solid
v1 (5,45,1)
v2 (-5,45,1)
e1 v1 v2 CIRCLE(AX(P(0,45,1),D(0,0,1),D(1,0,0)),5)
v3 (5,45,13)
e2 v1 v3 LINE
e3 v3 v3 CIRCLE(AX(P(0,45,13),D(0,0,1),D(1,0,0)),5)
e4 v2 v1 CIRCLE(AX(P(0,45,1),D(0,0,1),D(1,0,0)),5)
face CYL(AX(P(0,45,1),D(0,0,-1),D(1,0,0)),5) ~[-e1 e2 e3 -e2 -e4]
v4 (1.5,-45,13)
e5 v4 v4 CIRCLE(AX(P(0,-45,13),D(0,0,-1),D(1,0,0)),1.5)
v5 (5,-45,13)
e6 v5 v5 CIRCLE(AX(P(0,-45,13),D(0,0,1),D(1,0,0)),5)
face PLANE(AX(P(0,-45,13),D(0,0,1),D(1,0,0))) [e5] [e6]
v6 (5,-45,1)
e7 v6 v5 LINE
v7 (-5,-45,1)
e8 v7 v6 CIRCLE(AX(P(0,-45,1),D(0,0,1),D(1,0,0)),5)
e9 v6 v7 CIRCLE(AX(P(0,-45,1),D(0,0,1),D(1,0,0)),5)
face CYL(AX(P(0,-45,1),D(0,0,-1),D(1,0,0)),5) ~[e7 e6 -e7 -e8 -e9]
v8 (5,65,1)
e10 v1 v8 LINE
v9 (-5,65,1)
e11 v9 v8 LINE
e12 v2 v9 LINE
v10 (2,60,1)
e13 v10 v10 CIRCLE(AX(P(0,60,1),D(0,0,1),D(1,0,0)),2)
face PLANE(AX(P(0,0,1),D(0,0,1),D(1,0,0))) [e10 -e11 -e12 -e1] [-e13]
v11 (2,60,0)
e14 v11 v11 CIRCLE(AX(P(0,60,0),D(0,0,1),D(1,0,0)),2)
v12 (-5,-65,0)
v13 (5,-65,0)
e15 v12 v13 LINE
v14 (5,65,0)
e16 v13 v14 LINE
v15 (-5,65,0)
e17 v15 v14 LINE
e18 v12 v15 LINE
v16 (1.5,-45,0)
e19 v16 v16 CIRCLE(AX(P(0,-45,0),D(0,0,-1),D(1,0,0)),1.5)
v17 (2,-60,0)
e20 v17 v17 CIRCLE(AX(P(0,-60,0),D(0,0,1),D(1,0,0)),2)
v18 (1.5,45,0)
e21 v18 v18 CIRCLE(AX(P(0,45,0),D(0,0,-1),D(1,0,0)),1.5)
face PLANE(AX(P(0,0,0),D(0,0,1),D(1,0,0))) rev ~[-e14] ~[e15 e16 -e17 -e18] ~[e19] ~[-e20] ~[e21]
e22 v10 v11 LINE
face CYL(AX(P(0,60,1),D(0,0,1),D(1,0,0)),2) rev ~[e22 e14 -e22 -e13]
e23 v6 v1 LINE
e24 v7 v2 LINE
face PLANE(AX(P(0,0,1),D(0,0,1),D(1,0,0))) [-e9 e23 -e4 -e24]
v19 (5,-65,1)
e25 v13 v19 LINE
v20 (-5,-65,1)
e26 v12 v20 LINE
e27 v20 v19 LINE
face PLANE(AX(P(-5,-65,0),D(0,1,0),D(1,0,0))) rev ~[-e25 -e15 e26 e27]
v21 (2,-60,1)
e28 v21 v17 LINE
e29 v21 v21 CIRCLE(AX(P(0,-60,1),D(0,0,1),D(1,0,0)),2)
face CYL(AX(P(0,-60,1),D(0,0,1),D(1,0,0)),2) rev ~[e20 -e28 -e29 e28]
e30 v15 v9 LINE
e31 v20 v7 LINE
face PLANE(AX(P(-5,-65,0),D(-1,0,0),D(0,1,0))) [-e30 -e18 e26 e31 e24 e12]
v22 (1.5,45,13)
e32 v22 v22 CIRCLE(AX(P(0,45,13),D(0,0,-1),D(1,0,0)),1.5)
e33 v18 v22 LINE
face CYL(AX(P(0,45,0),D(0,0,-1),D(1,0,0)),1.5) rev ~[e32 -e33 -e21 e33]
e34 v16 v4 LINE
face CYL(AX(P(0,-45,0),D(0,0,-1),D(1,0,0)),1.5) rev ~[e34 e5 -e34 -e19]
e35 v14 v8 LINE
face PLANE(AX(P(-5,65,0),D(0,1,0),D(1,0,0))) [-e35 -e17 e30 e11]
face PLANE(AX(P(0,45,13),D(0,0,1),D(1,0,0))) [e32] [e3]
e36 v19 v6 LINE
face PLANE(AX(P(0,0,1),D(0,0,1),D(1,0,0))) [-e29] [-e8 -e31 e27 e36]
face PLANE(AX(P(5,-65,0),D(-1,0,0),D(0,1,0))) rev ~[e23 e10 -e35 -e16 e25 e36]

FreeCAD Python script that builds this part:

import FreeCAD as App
import Part
import Sketcher

V = App.Vector
Q = App.Units.Quantity


def add_polygon(sketch, points):
    """Adds a closed chain of lines whose ends are joined by coincident constraints."""
    first, n = sketch.GeometryCount, len(points)
    for a, b in zip(points, points[1:] + points[:1]):
        sketch.addGeometry(Part.LineSegment(App.Vector(*a, 0), App.Vector(*b, 0)), False)
    for i in range(n):
        sketch.addConstraint(Sketcher.Constraint("Coincident", first + i, 2, first + (i + 1) % n, 1))

doc = App.newDocument("Part")
body = doc.addObject("PartDesign::Body", "Body")

sketch1 = body.newObject("Sketcher::SketchObject", "Sketch")
sketch1.AttachmentSupport = (doc.getObject("XY_Plane"), [""])
sketch1.MapMode = "FlatFace"
add_polygon(sketch1, [(-5, 65), (-5, -65), (5, -65), (5, 65)])
sketch1.addConstraint([
    Sketcher.Constraint("Vertical", 0),
    Sketcher.Constraint("Horizontal", 1),
    Sketcher.Constraint("Vertical", 2),
    Sketcher.Constraint("Horizontal", 3),
    Sketcher.Constraint("Symmetric", 0, 2, 2, 2, -1, 1),
    Sketcher.Constraint("DistanceX", 1, 1, 1, 2, Q("10 mm")),
    Sketcher.Constraint("DistanceY", 0, 2, 0, 1, Q("130 mm")),
])
pad1 = body.newObject("PartDesign::Pad", "Pad")
pad1.Profile = sketch1
pad1.Length = 1

sketch2 = body.newObject("Sketcher::SketchObject", "Sketch001")
sketch2.AttachmentSupport = (doc.getObject("XY_Plane"), [""])
sketch2.MapMode = "FlatFace"
sketch2.AttachmentOffset = App.Placement(V(0, 0, 1), App.Rotation())
sketch2.addGeometry([
    Part.Circle(V(0, 60, 0), V(0, 0, 1), 2),
    Part.Circle(V(0, -60, 0), V(0, 0, 1), 2),
], False)
sketch2.addConstraint([
    Sketcher.Constraint("Equal", 0, 1),
    Sketcher.Constraint("Symmetric", 0, 3, 1, 3, -1, 1),
    Sketcher.Constraint("PointOnObject", 0, 3, -2),
    Sketcher.Constraint("Diameter", 0, Q("4 mm")),
    Sketcher.Constraint("DistanceY", -1, 1, 0, 3, Q("60 mm")),
])
pocket1 = body.newObject("PartDesign::Pocket", "Pocket")
pocket1.Profile = sketch2
pocket1.Length = 25

sketch3 = body.newObject("Sketcher::SketchObject", "Sketch002")
sketch3.AttachmentSupport = (doc.getObject("XY_Plane"), [""])
sketch3.MapMode = "FlatFace"
sketch3.AttachmentOffset = App.Placement(V(0, 0, 1), App.Rotation())
sketch3.addGeometry([
    Part.Circle(V(0, 45, 0), V(0, 0, 1), 5),
    Part.Circle(V(0, -45, 0), V(0, 0, 1), 5),
], False)
sketch3.addConstraint([
    Sketcher.Constraint("Equal", 0, 1),
    Sketcher.Constraint("Symmetric", 0, 3, 1, 3, -1, 1),
    Sketcher.Constraint("PointOnObject", 0, 3, -2),
    Sketcher.Constraint("Diameter", 0, Q("10 mm")),
    Sketcher.Constraint("DistanceY", -1, 1, 0, 3, Q("45 mm")),
])
pad2 = body.newObject("PartDesign::Pad", "Pad001")
pad2.Profile = sketch3
pad2.Length = 12

sketch4 = body.newObject("Sketcher::SketchObject", "Sketch003")
sketch4.AttachmentSupport = (doc.getObject("XY_Plane"), [""])
sketch4.MapMode = "FlatFace"
sketch4.addGeometry([
    Part.Circle(V(0, 45, 0), V(0, 0, 1), 1.5),
    Part.Circle(V(0, -45, 0), V(0, 0, 1), 1.5),
], False)
sketch4.addConstraint([
    Sketcher.Constraint("Equal", 0, 1),
    Sketcher.Constraint("Symmetric", 0, 3, 1, 3, -1, 1),
    Sketcher.Constraint("PointOnObject", 0, 3, -2),
    Sketcher.Constraint("Diameter", 0, Q("3 mm")),
    Sketcher.Constraint("DistanceY", -1, 1, 0, 3, Q("45 mm")),
])
pocket2 = body.newObject("PartDesign::Pocket", "Pocket001")
pocket2.Profile = sketch4
pocket2.Length = 25
pocket2.Reversed = True

doc.recompute()
